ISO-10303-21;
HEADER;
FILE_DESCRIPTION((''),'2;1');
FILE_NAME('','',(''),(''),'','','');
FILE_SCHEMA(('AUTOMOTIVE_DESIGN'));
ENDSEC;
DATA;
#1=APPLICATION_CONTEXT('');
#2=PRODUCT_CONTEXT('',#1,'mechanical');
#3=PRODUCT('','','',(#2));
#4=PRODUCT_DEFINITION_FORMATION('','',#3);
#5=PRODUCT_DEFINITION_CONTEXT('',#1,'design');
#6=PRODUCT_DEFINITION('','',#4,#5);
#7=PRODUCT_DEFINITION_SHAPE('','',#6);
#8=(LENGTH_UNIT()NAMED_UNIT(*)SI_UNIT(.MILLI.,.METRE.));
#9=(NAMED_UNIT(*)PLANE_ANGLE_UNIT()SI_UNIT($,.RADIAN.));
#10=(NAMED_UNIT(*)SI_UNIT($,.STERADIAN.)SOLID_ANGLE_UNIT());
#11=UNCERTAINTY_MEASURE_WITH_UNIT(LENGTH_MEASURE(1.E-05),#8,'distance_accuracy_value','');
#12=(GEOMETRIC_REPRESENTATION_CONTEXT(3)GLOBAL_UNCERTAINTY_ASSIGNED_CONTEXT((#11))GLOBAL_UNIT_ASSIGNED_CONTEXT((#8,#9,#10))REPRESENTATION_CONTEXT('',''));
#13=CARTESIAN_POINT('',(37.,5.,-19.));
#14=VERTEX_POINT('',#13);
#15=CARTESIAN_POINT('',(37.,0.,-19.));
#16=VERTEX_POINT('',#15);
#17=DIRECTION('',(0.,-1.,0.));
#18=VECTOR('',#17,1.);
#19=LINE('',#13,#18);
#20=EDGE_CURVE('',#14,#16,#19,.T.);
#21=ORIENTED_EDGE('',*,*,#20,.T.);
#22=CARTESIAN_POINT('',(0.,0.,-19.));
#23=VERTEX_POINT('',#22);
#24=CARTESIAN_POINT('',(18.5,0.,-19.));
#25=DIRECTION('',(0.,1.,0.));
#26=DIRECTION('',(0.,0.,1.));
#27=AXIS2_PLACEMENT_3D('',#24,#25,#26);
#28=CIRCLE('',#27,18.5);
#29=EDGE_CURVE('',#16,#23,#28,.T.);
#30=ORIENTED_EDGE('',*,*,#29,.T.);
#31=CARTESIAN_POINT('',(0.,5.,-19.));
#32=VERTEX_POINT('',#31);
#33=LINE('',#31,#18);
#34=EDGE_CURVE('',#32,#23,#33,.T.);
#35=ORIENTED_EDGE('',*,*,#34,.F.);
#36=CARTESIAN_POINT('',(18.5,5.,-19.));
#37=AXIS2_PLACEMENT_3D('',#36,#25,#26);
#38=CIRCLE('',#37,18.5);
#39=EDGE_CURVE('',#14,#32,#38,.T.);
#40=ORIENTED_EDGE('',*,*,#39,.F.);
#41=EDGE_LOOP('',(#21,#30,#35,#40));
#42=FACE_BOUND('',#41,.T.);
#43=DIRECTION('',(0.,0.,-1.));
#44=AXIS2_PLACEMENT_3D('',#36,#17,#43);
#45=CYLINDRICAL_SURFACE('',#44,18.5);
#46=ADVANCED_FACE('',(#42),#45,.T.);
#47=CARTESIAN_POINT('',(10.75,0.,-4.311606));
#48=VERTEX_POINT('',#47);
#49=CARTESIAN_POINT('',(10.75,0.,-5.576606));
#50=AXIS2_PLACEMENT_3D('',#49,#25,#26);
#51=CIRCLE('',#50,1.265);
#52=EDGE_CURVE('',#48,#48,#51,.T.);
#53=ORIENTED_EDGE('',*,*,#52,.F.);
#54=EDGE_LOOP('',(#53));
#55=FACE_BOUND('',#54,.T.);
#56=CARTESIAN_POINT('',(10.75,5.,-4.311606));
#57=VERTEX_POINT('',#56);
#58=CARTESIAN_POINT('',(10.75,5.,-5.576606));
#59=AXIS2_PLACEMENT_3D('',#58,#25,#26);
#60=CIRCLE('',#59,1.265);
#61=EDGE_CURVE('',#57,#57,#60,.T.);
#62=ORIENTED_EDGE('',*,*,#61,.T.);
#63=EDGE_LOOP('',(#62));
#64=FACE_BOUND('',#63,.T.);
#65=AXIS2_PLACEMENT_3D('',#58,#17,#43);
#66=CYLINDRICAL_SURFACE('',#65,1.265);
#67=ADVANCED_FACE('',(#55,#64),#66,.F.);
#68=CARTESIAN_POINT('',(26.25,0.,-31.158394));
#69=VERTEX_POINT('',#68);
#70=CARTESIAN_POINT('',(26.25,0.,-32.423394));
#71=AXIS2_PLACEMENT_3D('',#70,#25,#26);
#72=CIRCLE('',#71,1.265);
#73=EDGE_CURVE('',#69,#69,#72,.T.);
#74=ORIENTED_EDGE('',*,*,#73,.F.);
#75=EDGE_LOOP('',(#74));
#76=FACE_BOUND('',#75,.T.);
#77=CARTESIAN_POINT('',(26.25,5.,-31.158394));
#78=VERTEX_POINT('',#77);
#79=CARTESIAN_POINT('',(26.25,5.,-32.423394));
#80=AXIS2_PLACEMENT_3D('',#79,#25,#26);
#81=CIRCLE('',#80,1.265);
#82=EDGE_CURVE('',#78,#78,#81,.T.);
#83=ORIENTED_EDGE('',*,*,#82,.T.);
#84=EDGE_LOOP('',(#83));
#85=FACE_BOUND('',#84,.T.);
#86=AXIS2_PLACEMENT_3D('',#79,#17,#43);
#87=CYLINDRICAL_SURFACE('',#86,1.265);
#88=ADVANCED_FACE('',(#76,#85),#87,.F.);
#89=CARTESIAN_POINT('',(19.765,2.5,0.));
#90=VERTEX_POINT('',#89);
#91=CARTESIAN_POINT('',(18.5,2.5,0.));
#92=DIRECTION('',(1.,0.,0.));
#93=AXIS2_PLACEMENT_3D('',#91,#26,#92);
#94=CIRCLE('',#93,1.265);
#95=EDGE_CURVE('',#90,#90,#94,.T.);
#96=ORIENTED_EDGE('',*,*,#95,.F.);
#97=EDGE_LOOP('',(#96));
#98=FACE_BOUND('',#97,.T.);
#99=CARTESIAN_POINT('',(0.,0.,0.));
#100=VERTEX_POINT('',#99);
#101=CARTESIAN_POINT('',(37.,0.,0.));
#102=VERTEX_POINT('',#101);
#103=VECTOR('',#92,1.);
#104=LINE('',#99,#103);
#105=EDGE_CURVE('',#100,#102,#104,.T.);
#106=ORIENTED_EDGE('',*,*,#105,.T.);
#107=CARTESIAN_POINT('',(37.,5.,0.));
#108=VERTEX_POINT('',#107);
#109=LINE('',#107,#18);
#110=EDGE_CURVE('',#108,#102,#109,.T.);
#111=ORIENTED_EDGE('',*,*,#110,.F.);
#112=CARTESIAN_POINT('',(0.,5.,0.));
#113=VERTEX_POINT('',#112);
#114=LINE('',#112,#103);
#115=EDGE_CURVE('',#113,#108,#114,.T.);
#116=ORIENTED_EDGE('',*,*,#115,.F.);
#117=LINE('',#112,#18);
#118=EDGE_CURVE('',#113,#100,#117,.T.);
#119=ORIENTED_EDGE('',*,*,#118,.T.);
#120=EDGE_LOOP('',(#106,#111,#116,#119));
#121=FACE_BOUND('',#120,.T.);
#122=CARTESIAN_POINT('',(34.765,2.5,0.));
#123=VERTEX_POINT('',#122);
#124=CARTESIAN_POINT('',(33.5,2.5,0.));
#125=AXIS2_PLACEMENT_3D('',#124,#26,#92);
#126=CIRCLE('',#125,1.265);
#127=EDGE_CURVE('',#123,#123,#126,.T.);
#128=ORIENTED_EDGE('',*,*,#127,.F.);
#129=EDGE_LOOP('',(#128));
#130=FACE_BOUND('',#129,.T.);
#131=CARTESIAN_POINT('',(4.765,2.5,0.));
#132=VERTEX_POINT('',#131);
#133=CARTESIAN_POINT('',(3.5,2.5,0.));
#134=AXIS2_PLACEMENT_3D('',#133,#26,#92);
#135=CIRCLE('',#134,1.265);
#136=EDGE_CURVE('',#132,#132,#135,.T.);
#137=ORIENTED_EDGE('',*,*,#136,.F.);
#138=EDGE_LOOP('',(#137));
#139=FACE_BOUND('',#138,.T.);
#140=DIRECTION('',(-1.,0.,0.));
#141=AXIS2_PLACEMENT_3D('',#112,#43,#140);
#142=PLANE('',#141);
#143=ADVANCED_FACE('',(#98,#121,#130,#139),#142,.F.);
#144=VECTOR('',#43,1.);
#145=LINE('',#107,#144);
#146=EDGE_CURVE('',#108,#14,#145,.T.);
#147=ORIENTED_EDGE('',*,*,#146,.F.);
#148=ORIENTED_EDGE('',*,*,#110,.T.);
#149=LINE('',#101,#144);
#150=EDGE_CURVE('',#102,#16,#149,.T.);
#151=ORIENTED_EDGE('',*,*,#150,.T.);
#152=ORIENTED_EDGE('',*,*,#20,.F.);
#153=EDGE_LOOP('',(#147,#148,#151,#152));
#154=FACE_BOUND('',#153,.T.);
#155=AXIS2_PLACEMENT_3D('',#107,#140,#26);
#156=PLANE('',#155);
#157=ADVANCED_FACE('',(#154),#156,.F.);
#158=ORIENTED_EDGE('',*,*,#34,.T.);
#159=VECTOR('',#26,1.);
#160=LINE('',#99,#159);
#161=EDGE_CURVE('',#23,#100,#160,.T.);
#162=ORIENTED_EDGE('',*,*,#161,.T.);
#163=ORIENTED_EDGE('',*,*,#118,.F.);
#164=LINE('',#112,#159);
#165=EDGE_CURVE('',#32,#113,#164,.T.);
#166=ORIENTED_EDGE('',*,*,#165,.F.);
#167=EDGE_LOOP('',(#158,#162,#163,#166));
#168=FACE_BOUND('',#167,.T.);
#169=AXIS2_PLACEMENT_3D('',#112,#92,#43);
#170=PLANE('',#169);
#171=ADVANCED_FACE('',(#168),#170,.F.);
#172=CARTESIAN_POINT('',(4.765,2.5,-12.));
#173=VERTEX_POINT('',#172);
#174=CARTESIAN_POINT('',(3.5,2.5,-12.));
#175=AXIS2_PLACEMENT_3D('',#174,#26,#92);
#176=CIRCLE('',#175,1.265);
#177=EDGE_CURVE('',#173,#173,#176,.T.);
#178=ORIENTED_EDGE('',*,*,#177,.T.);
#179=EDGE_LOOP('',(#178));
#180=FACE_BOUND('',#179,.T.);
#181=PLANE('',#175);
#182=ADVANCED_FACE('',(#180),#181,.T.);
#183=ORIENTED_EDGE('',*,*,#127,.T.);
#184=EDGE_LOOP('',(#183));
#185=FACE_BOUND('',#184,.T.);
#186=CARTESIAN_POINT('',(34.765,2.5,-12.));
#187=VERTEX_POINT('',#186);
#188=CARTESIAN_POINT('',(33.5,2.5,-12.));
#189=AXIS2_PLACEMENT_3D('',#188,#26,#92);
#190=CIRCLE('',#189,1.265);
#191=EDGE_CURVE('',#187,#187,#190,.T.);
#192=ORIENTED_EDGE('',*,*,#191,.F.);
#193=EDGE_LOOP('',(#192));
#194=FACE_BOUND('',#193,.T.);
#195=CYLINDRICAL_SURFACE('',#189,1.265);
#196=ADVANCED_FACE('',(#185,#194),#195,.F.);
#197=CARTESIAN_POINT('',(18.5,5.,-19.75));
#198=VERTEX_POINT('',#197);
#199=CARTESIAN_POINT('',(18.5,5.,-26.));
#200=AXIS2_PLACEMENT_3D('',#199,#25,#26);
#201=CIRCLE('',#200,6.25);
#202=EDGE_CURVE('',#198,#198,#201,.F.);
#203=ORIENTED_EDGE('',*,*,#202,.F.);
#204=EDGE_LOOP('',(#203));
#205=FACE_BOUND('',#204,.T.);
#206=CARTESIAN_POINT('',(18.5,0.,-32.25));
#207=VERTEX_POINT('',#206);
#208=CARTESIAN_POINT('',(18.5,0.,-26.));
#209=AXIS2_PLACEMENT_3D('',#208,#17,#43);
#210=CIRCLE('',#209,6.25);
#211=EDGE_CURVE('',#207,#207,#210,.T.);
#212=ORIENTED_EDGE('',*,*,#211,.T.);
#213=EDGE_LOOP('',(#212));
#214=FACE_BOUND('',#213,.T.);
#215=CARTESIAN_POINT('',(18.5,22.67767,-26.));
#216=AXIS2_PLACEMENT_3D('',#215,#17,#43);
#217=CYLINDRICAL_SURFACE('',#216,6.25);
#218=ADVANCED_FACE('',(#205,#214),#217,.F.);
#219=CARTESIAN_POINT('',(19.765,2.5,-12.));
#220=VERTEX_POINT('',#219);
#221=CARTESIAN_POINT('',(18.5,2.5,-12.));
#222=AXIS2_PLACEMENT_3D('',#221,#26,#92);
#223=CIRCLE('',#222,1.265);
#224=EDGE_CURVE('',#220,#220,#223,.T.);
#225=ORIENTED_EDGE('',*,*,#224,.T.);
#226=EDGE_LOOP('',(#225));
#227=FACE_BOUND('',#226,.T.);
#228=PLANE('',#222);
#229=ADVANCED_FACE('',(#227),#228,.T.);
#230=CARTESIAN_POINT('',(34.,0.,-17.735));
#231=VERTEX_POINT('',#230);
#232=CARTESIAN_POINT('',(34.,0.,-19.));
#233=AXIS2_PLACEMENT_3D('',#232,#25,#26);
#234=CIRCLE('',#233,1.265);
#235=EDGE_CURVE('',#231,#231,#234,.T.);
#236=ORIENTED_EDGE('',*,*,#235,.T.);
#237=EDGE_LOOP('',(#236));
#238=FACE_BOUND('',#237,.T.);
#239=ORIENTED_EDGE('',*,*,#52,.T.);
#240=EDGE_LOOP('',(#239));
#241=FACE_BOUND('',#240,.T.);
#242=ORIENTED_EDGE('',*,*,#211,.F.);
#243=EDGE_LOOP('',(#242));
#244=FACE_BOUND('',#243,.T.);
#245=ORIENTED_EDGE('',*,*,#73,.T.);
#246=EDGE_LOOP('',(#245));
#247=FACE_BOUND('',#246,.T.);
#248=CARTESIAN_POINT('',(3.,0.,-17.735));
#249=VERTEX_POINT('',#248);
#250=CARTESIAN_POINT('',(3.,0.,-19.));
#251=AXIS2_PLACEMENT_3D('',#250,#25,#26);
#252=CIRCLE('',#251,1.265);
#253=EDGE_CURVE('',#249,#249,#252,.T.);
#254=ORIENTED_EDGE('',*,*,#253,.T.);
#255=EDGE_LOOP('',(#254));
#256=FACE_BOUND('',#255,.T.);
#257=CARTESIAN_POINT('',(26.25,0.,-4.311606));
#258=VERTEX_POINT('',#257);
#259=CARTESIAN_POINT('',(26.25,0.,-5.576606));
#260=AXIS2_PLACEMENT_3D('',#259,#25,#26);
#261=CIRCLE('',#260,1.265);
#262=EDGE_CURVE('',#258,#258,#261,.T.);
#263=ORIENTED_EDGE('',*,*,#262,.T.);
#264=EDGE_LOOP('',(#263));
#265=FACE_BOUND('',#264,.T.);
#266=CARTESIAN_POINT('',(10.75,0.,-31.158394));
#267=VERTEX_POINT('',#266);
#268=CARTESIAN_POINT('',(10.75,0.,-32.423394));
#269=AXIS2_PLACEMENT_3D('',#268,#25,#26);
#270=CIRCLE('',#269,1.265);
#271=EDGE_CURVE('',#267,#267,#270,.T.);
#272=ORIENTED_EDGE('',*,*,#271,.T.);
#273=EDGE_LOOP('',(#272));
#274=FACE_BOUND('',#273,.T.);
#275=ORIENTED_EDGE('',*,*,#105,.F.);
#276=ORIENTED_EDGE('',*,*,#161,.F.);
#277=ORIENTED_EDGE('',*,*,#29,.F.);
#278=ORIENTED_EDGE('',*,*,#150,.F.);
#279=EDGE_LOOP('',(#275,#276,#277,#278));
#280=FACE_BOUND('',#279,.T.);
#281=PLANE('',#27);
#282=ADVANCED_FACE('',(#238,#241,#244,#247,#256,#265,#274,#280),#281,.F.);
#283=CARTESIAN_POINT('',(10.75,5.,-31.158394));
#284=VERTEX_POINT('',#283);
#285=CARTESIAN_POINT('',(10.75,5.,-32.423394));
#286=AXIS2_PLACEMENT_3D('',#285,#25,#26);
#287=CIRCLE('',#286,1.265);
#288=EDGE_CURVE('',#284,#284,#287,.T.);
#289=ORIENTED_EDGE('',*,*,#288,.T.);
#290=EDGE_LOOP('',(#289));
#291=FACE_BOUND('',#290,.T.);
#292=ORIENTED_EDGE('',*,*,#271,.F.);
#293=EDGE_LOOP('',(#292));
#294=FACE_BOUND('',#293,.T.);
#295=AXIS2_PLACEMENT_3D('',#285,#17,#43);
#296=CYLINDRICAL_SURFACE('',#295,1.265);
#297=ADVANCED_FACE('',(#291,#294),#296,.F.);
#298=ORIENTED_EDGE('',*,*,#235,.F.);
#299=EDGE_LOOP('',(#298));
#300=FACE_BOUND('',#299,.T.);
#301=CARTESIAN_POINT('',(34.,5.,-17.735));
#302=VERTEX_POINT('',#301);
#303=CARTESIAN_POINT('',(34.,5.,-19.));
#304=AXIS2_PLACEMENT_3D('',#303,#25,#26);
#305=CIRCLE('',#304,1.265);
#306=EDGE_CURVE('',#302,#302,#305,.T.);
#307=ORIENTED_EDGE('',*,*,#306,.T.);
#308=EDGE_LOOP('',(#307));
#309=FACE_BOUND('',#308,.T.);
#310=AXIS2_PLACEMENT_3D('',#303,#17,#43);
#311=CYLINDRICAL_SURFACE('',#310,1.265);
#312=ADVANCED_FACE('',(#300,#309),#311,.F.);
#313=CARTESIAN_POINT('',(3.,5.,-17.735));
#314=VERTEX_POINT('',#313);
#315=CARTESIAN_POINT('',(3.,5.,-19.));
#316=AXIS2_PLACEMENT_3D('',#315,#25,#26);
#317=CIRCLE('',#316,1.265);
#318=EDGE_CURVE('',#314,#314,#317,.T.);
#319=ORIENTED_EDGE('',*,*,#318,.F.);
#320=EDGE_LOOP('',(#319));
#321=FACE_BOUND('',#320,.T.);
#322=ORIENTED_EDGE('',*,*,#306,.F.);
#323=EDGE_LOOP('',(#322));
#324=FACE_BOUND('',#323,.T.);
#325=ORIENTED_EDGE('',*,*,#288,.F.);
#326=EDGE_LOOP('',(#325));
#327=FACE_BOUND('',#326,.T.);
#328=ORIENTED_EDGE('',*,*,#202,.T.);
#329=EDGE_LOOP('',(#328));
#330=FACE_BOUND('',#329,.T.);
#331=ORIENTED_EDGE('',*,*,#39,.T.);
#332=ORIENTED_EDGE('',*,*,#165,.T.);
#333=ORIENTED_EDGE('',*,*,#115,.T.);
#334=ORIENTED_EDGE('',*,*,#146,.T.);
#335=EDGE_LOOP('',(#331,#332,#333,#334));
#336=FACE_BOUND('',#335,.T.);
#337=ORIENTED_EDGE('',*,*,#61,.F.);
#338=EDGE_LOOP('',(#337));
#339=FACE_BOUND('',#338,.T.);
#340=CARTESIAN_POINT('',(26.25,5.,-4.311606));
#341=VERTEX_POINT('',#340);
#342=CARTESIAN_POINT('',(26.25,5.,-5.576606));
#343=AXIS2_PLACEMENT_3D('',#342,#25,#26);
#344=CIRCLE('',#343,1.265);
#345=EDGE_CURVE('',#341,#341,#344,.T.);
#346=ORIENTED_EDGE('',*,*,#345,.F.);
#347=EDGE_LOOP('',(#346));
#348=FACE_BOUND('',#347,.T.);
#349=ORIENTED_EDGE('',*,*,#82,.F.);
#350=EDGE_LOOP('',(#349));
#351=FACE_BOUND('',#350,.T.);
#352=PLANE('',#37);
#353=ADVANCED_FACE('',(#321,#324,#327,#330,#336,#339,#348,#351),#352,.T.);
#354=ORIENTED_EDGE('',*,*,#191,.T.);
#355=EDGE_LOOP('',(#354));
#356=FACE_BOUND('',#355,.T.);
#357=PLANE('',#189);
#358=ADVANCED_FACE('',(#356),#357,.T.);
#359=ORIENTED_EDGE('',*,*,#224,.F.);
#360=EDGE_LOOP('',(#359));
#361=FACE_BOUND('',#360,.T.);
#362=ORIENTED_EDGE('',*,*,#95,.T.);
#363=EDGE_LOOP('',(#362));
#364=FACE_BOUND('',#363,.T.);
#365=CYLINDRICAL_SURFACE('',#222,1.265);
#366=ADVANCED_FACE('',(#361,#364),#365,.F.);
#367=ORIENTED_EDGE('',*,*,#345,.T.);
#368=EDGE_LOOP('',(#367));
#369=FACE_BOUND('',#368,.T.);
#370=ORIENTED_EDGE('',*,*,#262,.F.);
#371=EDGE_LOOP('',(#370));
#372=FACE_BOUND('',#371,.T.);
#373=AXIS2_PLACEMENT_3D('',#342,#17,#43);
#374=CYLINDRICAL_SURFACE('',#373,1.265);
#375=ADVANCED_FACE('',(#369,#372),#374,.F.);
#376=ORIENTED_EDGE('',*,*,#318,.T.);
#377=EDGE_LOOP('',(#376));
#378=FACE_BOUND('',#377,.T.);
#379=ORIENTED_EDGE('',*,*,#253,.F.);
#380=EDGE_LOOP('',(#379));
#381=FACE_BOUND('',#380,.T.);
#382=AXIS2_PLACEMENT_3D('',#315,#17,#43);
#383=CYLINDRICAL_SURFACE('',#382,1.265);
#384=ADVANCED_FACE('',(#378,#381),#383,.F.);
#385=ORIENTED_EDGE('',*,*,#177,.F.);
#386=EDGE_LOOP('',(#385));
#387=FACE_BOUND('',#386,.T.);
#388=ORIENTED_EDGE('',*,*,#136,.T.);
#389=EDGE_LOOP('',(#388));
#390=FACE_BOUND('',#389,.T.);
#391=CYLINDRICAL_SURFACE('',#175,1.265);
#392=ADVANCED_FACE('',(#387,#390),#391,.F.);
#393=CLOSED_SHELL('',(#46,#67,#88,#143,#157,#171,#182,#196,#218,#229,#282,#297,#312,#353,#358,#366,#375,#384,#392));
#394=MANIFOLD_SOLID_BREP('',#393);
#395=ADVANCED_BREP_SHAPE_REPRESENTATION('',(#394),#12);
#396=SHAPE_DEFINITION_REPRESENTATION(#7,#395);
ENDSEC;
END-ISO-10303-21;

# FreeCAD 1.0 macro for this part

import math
import FreeCAD as App
import Part
import Sketcher

V = App.Vector

doc = App.newDocument("Part")
params = doc.addObject("Spreadsheet::Sheet", "Params")
for row, (alias, value) in enumerate([
    ("sketch1_radius", "18.5 mm"),
    ("sketch1_diameter", "2.53 mm"),
    ("sketch1_height", "19 mm"),
    ("pad1_length", "5 mm"),
    ("sketch2_diameter", "12.5 mm"),
    ("pocket1_length", "5 mm"),
    ("sketch3_diameter", "2.53 mm"),
    ("pocket2_length", "12 mm"),
], start=1):
    params.set(f"A{row}", alias)
    params.set(f"B{row}", "=" + value)
    params.setAlias(f"B{row}", alias)

body = doc.addObject("PartDesign::Body", "Body")

# Sketch on XZ plane
sketch1 = body.newObject("Sketcher::SketchObject", "Sketch")
sketch1.AttachmentSupport = (doc.getObject("XZ_Plane"), [""])
sketch1.MapMode = "FlatFace"
sketch1.addGeometry(Part.LineSegment(V(0, 0, 0), V(37, 0, 0)), False)
sketch1.addGeometry(Part.LineSegment(V(37, 0, 0), V(37, -19, 0)), False)
sketch1.addGeometry(Part.ArcOfCircle(Part.Circle(V(18.5, -19, 0), V(0, 0, 1), 18.5), math.radians(180), math.radians(360)), False)
sketch1.addGeometry(Part.LineSegment(V(0, -19, 0), V(0, 0, 0)), False)
sketch1.addGeometry(Part.Circle(V(10.8, -5.6, 0), V(0, 0, 1), 1.3), False)
sketch1.addGeometry(Part.Circle(V(26.2, -5.6, 0), V(0, 0, 1), 1.3), False)
sketch1.addGeometry(Part.Circle(V(3, -19, 0), V(0, 0, 1), 1.3), False)
sketch1.addGeometry(Part.Circle(V(10.8, -32.4, 0), V(0, 0, 1), 1.3), False)
sketch1.addGeometry(Part.Circle(V(34, -19, 0), V(0, 0, 1), 1.3), False)
sketch1.addGeometry(Part.Circle(V(26.2, -32.4, 0), V(0, 0, 1), 1.3), False)
sketch1.addConstraint(Sketcher.Constraint("Coincident", 0, 2, 1, 1))
sketch1.addConstraint(Sketcher.Constraint("Tangent", 1, 2, 2, 2))
sketch1.addConstraint(Sketcher.Constraint("Tangent", 2, 1, 3, 1))
sketch1.addConstraint(Sketcher.Constraint("Coincident", 3, 2, 0, 1))
sketch1.addConstraint(Sketcher.Constraint("Horizontal", 0))
sketch1.addConstraint(Sketcher.Constraint("Vertical", 1))
sketch1.addConstraint(Sketcher.Constraint("Vertical", 3))
sketch1.addConstraint(Sketcher.Constraint("Coincident", 3, 2, -1, 1))
sketch1.addConstraint(Sketcher.Constraint("Equal", 4, 5))
sketch1.addConstraint(Sketcher.Constraint("Equal", 5, 6))
sketch1.addConstraint(Sketcher.Constraint("Equal", 6, 7))
sketch1.addConstraint(Sketcher.Constraint("Equal", 7, 8))
sketch1.addConstraint(Sketcher.Constraint("Equal", 8, 9))
sketch1.addConstraint(Sketcher.Constraint("Horizontal", 4, 3, 5, 3))
sketch1.addConstraint(Sketcher.Constraint("Horizontal", 2, 3, 6, 3))
sketch1.addConstraint(Sketcher.Constraint("Horizontal", 6, 3, 8, 3))
sketch1.addConstraint(Sketcher.Constraint("Horizontal", 7, 3, 9, 3))
sketch1.addConstraint(Sketcher.Constraint("Vertical", 4, 3, 7, 3))
sketch1.addConstraint(Sketcher.Constraint("Vertical", 5, 3, 9, 3))
sketch1.addConstraint(Sketcher.Constraint("Radius", 2, 18.5))
sketch1.addConstraint(Sketcher.Constraint("Diameter", 4, 2.53))
sketch1.addConstraint(Sketcher.Constraint("DistanceY", 1, 2, 1, 1, 19.0))
sketch1.addConstraint(Sketcher.Constraint("DistanceX", -1, 1, 6, 3, 3.0))
sketch1.addConstraint(Sketcher.Constraint("DistanceX", -1, 1, 8, 3, 34.0))
sketch1.addConstraint(Sketcher.Constraint("DistanceX", 4, 3, 5, 3, 15.5))
sketch1.addConstraint(Sketcher.Constraint("DistanceX", -1, 1, 4, 3, 10.75))
sketch1.addConstraint(Sketcher.Constraint("DistanceY", 4, 3, -1, 1, 5.576606))
sketch1.addConstraint(Sketcher.Constraint("DistanceY", 7, 3, -1, 1, 32.423394))
sketch1.setExpression("Constraints[19]", "Params.sketch1_radius")
sketch1.setExpression("Constraints[20]", "Params.sketch1_diameter")
sketch1.setExpression("Constraints[21]", "Params.sketch1_height")
pad1 = body.newObject("PartDesign::Pad", "Pad")
pad1.Profile = sketch1
pad1.setExpression("Length", "Params.pad1_length")
pad1.Reversed = True

# Sketch on XZ plane
sketch2 = body.newObject("Sketcher::SketchObject", "Sketch001")
sketch2.AttachmentSupport = (doc.getObject("XZ_Plane"), [""])
sketch2.MapMode = "FlatFace"
sketch2.addGeometry(Part.Circle(V(18, -26, 0), V(0, 0, 1), 6), False)
sketch2.addConstraint(Sketcher.Constraint("Diameter", 0, 12.5))
sketch2.addConstraint(Sketcher.Constraint("DistanceY", 0, 3, -1, 1, 26.0))
sketch2.addConstraint(Sketcher.Constraint("DistanceX", -1, 1, 0, 3, 18.5))
sketch2.setExpression("Constraints[0]", "Params.sketch2_diameter")
pocket1 = body.newObject("PartDesign::Pocket", "Pocket")
pocket1.Profile = sketch2
pocket1.setExpression("Length", "Params.pocket1_length")

# Sketch on XY plane
sketch3 = body.newObject("Sketcher::SketchObject", "Sketch002")
sketch3.AttachmentSupport = (doc.getObject("XY_Plane"), [""])
sketch3.MapMode = "FlatFace"
sketch3.addGeometry(Part.Circle(V(3.5, 2.5, 0), V(0, 0, 1), 1.3), False)
sketch3.addGeometry(Part.Circle(V(18.5, 2.5, 0), V(0, 0, 1), 1.3), False)
sketch3.addGeometry(Part.Circle(V(33.5, 2.5, 0), V(0, 0, 1), 1.3), False)
sketch3.addConstraint(Sketcher.Constraint("Equal", 0, 1))
sketch3.addConstraint(Sketcher.Constraint("Equal", 1, 2))
sketch3.addConstraint(Sketcher.Constraint("Horizontal", 0, 3, 1, 3))
sketch3.addConstraint(Sketcher.Constraint("Horizontal", 1, 3, 2, 3))
sketch3.addConstraint(Sketcher.Constraint("Diameter", 0, 2.53))
sketch3.addConstraint(Sketcher.Constraint("DistanceX", 0, 3, 1, 3, 15.0))
sketch3.addConstraint(Sketcher.Constraint("DistanceX", 1, 3, 2, 3, 15.0))
sketch3.addConstraint(Sketcher.Constraint("DistanceX", -1, 1, 0, 3, 3.5))
sketch3.addConstraint(Sketcher.Constraint("DistanceY", -1, 1, 0, 3, 2.5))
sketch3.setExpression("Constraints[4]", "Params.sketch3_diameter")
pocket2 = body.newObject("PartDesign::Pocket", "Pocket001")
pocket2.Profile = sketch3
pocket2.setExpression("Length", "Params.pocket2_length")

doc.recompute()
